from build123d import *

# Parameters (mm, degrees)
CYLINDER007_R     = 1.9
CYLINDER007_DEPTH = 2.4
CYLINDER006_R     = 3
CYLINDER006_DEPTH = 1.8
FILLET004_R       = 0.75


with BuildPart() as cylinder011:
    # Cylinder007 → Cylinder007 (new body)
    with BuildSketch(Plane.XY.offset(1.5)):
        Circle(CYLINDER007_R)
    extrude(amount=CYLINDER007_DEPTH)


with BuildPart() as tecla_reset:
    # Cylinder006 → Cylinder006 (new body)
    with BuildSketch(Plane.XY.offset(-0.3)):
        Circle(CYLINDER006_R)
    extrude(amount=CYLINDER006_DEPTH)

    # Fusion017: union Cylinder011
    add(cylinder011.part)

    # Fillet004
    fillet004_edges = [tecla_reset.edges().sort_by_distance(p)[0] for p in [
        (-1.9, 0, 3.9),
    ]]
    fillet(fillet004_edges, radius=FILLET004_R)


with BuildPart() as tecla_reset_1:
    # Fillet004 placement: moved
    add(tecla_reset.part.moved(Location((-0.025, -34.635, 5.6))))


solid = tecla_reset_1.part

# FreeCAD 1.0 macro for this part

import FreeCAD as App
import Part
import Sketcher

V = App.Vector


def edges_at(feature, points):
    """Names of the edges that pass closest to the given points."""
    edges = feature.Shape.Edges
    near = lambda p: min(range(len(edges)), key=lambda i: edges[i].distToShape(Part.Vertex(*p))[0])
    return sorted({f"Edge{near(p) + 1}" for p in points})

doc = App.newDocument("Part")
params = doc.addObject("Spreadsheet::Sheet", "Params")
for row, (alias, value) in enumerate([
    ("sketch1_diameter", "3.8 mm"),
    ("pad1_length", "2.4 mm"),
    ("sketch2_diameter", "6 mm"),
    ("pad2_length", "1.8 mm"),
    ("fillet_radius", "0.75 mm"),
], start=1):
    params.set(f"A{row}", alias)
    params.set(f"B{row}", "=" + value)
    params.setAlias(f"B{row}", alias)

body = doc.addObject("PartDesign::Body", "Body")

# Sketch on XY plane
sketch1 = body.newObject("Sketcher::SketchObject", "Sketch")
sketch1.AttachmentSupport = (doc.getObject("XY_Plane"), [""])
sketch1.MapMode = "FlatFace"
sketch1.AttachmentOffset = App.Placement(V(0, 0, 1.5), App.Rotation())
sketch1.addGeometry(Part.Circle(V(0, 0, 0), V(0, 0, 1), 1.9), False)
sketch1.addConstraint([
    Sketcher.Constraint("Coincident", 0, 3, -1, 1),
    Sketcher.Constraint("Diameter", 0, 3.8),
])
sketch1.setExpression("Constraints[1]", "Params.sketch1_diameter")
pad1 = body.newObject("PartDesign::Pad", "Pad")
pad1.Profile = sketch1
pad1.setExpression("Length", "Params.pad1_length")
body2 = doc.addObject("PartDesign::Body", "Body001")

# Sketch on XY plane
sketch2 = body2.newObject("Sketcher::SketchObject", "Sketch001")
sketch2.AttachmentSupport = (doc.getObject("XY_Plane001"), [""])
sketch2.MapMode = "FlatFace"
sketch2.AttachmentOffset = App.Placement(V(0, 0, -0.3), App.Rotation())
sketch2.addGeometry(Part.Circle(V(0, 0, 0), V(0, 0, 1), 3), False)
sketch2.addConstraint([
    Sketcher.Constraint("Coincident", 0, 3, -1, 1),
    Sketcher.Constraint("Diameter", 0, 6.0),
])
sketch2.setExpression("Constraints[1]", "Params.sketch2_diameter")
pad2 = body2.newObject("PartDesign::Pad", "Pad001")
pad2.Profile = sketch2
pad2.setExpression("Length", "Params.pad2_length")
doc.recompute()

boolean = body2.newObject("PartDesign::Boolean", "Boolean")
boolean.Type = "Fuse"
boolean.addObjects([body])
doc.recompute()

fillet = body2.newObject("PartDesign::Fillet", "Fillet")
fillet.Base = (boolean, edges_at(boolean, [(-1.9, 0, 3.9)]))
fillet.setExpression("Radius", "Params.fillet_radius")
body3 = doc.addObject("PartDesign::Body", "Body002")
doc.recompute()

body2.Placement = App.Placement(V(-0.025, -34.635, 5.6), App.Rotation(V(0, 0, 1), 0))
boolean2 = body3.newObject("PartDesign::Boolean", "Boolean001")
boolean2.Type = "Fuse"
boolean2.addObjects([body2])

doc.recompute()
